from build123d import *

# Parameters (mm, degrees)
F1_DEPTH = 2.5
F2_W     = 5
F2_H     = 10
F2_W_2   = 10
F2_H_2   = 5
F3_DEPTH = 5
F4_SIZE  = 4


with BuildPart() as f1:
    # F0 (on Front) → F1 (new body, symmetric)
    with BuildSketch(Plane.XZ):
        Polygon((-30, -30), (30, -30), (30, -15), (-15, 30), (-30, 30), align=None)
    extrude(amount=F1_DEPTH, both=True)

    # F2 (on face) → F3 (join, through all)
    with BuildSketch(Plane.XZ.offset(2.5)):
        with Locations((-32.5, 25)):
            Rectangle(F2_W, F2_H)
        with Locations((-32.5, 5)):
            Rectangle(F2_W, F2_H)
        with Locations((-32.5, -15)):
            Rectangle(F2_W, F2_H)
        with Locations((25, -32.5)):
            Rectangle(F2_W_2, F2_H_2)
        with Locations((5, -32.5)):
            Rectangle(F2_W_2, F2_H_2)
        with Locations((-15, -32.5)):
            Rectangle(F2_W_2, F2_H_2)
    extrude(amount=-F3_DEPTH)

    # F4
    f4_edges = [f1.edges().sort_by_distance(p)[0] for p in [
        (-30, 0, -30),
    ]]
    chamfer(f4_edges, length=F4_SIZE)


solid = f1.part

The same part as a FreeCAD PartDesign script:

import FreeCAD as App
import Part
import Sketcher
from FreeCAD import Vector


def edges_at(feature, points):
    """Names of the edges that pass closest to the given points."""
    edges = feature.Shape.Edges
    near = lambda p: min(range(len(edges)), key=lambda i: edges[i].distToShape(Part.Vertex(*p))[0])
    return sorted({f"Edge{near(p) + 1}" for p in points})

doc = App.newDocument("Part")
body = doc.addObject("PartDesign::Body", "Body")

# Sketch on XZ plane
sketch1 = body.newObject("Sketcher::SketchObject", "Sketch")
sketch1.AttachmentSupport = (doc.getObject("XZ_Plane"), [""])
sketch1.MapMode = "FlatFace"
sketch1.addGeometry([
    Part.LineSegment(Vector(-30, -30, 0), Vector(30, -30, 0)),  # 0
    Part.LineSegment(Vector(30, -30, 0), Vector(30, -15, 0)),  # 1
    Part.LineSegment(Vector(30, -15, 0), Vector(-15, 30, 0)),  # 2
    Part.LineSegment(Vector(-15, 30, 0), Vector(-30, 30, 0)),  # 3
    Part.LineSegment(Vector(-30, 30, 0), Vector(-30, -30, 0)),  # 4
], False)
sketch1.addConstraint([
    Sketcher.Constraint("Coincident", 0, 2, 1, 1),
    Sketcher.Constraint("Coincident", 1, 2, 2, 1),
    Sketcher.Constraint("Coincident", 2, 2, 3, 1),
    Sketcher.Constraint("Coincident", 3, 2, 4, 1),
    Sketcher.Constraint("Coincident", 4, 2, 0, 1),
    Sketcher.Constraint("Horizontal", 0),
    Sketcher.Constraint("Vertical", 1),
    Sketcher.Constraint("Horizontal", 3),
    Sketcher.Constraint("Vertical", 4),
    Sketcher.Constraint("Symmetric", 0, 2, 3, 2, -1, 1),
    Sketcher.Constraint("Equal", 3, 1),
    Sketcher.Constraint("Equal", 0, 4),
    Sketcher.Constraint("DistanceX", 0, 1, 0, 2, 60.0),
    Sketcher.Constraint("DistanceX", 3, 2, 3, 1, 15.0),
])
pad1 = body.newObject("PartDesign::Pad", "Pad")
pad1.Profile = sketch1
pad1.Length = 5
pad1.Midplane = True

# Sketch on XZ plane
sketch2 = body.newObject("Sketcher::SketchObject", "Sketch001")
sketch2.AttachmentSupport = (doc.getObject("XZ_Plane"), [""])
sketch2.MapMode = "FlatFace"
sketch2.AttachmentOffset = App.Placement(Vector(0, 0, 2.5), App.Rotation())
sketch2.addGeometry([
    Part.LineSegment(Vector(-35, 30, 0), Vector(-35, 20, 0)),  # 0
    Part.LineSegment(Vector(-35, 20, 0), Vector(-30, 20, 0)),  # 1
    Part.LineSegment(Vector(-30, 20, 0), Vector(-30, 30, 0)),  # 2
    Part.LineSegment(Vector(-30, 30, 0), Vector(-35, 30, 0)),  # 3
    Part.LineSegment(Vector(-35, 10, 0), Vector(-35, 0, 0)),  # 4
    Part.LineSegment(Vector(-35, 0, 0), Vector(-30, 0, 0)),  # 5
    Part.LineSegment(Vector(-30, 0, 0), Vector(-30, 10, 0)),  # 6
    Part.LineSegment(Vector(-30, 10, 0), Vector(-35, 10, 0)),  # 7
    Part.LineSegment(Vector(-35, -10, 0), Vector(-35, -20, 0)),  # 8
    Part.LineSegment(Vector(-35, -20, 0), Vector(-30, -20, 0)),  # 9
    Part.LineSegment(Vector(-30, -20, 0), Vector(-30, -10, 0)),  # 10
    Part.LineSegment(Vector(-30, -10, 0), Vector(-35, -10, 0)),  # 11
    Part.LineSegment(Vector(20, -30, 0), Vector(20, -35, 0)),  # 12
    Part.LineSegment(Vector(20, -35, 0), Vector(30, -35, 0)),  # 13
    Part.LineSegment(Vector(30, -35, 0), Vector(30, -30, 0)),  # 14
    Part.LineSegment(Vector(30, -30, 0), Vector(20, -30, 0)),  # 15
    Part.LineSegment(Vector(0, -30, 0), Vector(0, -35, 0)),  # 16
    Part.LineSegment(Vector(0, -35, 0), Vector(10, -35, 0)),  # 17
    Part.LineSegment(Vector(10, -35, 0), Vector(10, -30, 0)),  # 18
    Part.LineSegment(Vector(10, -30, 0), Vector(0, -30, 0)),  # 19
    Part.LineSegment(Vector(-20, -30, 0), Vector(-20, -35, 0)),  # 20
    Part.LineSegment(Vector(-20, -35, 0), Vector(-10, -35, 0)),  # 21
    Part.LineSegment(Vector(-10, -35, 0), Vector(-10, -30, 0)),  # 22
    Part.LineSegment(Vector(-10, -30, 0), Vector(-20, -30, 0)),  # 23
], False)
sketch2.addConstraint([
    Sketcher.Constraint("Coincident", 0, 2, 1, 1),
    Sketcher.Constraint("Coincident", 1, 2, 2, 1),
    Sketcher.Constraint("Coincident", 2, 2, 3, 1),
    Sketcher.Constraint("Coincident", 3, 2, 0, 1),
    Sketcher.Constraint("Coincident", 4, 2, 5, 1),
    Sketcher.Constraint("Coincident", 5, 2, 6, 1),
    Sketcher.Constraint("Coincident", 6, 2, 7, 1),
    Sketcher.Constraint("Coincident", 7, 2, 4, 1),
    Sketcher.Constraint("Coincident", 8, 2, 9, 1),
    Sketcher.Constraint("Coincident", 9, 2, 10, 1),
    Sketcher.Constraint("Coincident", 10, 2, 11, 1),
    Sketcher.Constraint("Coincident", 11, 2, 8, 1),
    Sketcher.Constraint("Coincident", 12, 2, 13, 1),
    Sketcher.Constraint("Coincident", 13, 2, 14, 1),
    Sketcher.Constraint("Coincident", 14, 2, 15, 1),
    Sketcher.Constraint("Coincident", 15, 2, 12, 1),
    Sketcher.Constraint("Coincident", 16, 2, 17, 1),
    Sketcher.Constraint("Coincident", 17, 2, 18, 1),
    Sketcher.Constraint("Coincident", 18, 2, 19, 1),
    Sketcher.Constraint("Coincident", 19, 2, 16, 1),
    Sketcher.Constraint("Coincident", 20, 2, 21, 1),
    Sketcher.Constraint("Coincident", 21, 2, 22, 1),
    Sketcher.Constraint("Coincident", 22, 2, 23, 1),
    Sketcher.Constraint("Coincident", 23, 2, 20, 1),
    Sketcher.Constraint("Vertical", 0),
    Sketcher.Constraint("Horizontal", 1),
    Sketcher.Constraint("Vertical", 2),
    Sketcher.Constraint("Horizontal", 3),
    Sketcher.Constraint("Vertical", 4),
    Sketcher.Constraint("Horizontal", 5),
    Sketcher.Constraint("Vertical", 6),
    Sketcher.Constraint("Horizontal", 7),
    Sketcher.Constraint("Vertical", 8),
    Sketcher.Constraint("Horizontal", 9),
    Sketcher.Constraint("Vertical", 10),
    Sketcher.Constraint("Horizontal", 11),
    Sketcher.Constraint("Vertical", 12),
    Sketcher.Constraint("Horizontal", 13),
    Sketcher.Constraint("Vertical", 14),
    Sketcher.Constraint("Horizontal", 15),
    Sketcher.Constraint("Vertical", 16),
    Sketcher.Constraint("Horizontal", 17),
    Sketcher.Constraint("Vertical", 18),
    Sketcher.Constraint("Horizontal", 19),
    Sketcher.Constraint("Vertical", 20),
    Sketcher.Constraint("Horizontal", 21),
    Sketcher.Constraint("Vertical", 22),
    Sketcher.Constraint("Horizontal", 23),
    Sketcher.Constraint("Symmetric", 2, 2, 14, 2, -1, 1),
    Sketcher.Constraint("Symmetric", 12, 2, 20, 2, -2),
    Sketcher.Constraint("Symmetric", 17, 2, 21, 2, -2),
    Sketcher.Constraint("Symmetric", 0, 2, 8, 2, -1),
    Sketcher.Constraint("Symmetric", 6, 2, 10, 2, -1),
    Sketcher.Constraint("PointOnObject", 4, 2, -1),
    Sketcher.Constraint("PointOnObject", 16, 2, -2),
    Sketcher.Constraint("Horizontal", 15, 2, 18, 2),
    Sketcher.Constraint("Horizontal", 19, 2, 22, 2),
    Sketcher.Constraint("Vertical", 3, 2, 4, 2),
    Sketcher.Constraint("Vertical", 2, 2, 5, 2),
    Sketcher.Constraint("Equal", 15, 17),
    Sketcher.Constraint("Equal", 19, 21),
    Sketcher.Constraint("Equal", 23, 0),
    Sketcher.Constraint("Equal", 2, 4),
    Sketcher.Constraint("Equal", 6, 8),
    Sketcher.Constraint("Equal", 11, 12),
    Sketcher.Constraint("DistanceX", 1, 1, 1, 2, 5.0),
    Sketcher.Constraint("DistanceX", 13, 1, 13, 2, 10.0),
])
pad2 = body.newObject("PartDesign::Pad", "Pad001")
pad2.Profile = sketch2
pad2.Type = "UpToLast"
pad2.Reversed = True
doc.recompute()

chamfer = body.newObject("PartDesign::Chamfer", "Chamfer")
chamfer.Base = (pad2, edges_at(pad2, [(-30, 0, -30)]))
chamfer.Size = 4

doc.recompute()
